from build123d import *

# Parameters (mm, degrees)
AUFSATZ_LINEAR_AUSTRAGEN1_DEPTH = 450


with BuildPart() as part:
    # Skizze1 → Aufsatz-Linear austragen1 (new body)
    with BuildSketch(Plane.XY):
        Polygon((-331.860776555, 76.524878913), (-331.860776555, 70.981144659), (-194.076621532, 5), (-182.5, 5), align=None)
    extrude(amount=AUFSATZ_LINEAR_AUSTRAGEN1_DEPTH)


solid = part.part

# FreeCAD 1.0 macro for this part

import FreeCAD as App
import Part
import Sketcher


def add_polygon(sketch, points):
    """Adds a closed chain of lines whose ends are joined by coincident constraints."""
    first, n = sketch.GeometryCount, len(points)
    for a, b in zip(points, points[1:] + points[:1]):
        sketch.addGeometry(Part.LineSegment(App.Vector(*a, 0), App.Vector(*b, 0)), False)
    for i in range(n):
        sketch.addConstraint(Sketcher.Constraint("Coincident", first + i, 2, first + (i + 1) % n, 1))

doc = App.newDocument("Part")
body = doc.addObject("PartDesign::Body", "Body")

# Sketch on XY plane
sketch1 = body.newObject("Sketcher::SketchObject", "Sketch")
sketch1.AttachmentSupport = (doc.getObject("XY_Plane"), [""])
sketch1.MapMode = "FlatFace"
add_polygon(sketch1, [(-332, 77), (-332, 71), (-194, 5), (-182, 5)])  # lines 0-3
sketch1.addConstraint([
    Sketcher.Constraint("Vertical", 0),
    Sketcher.Constraint("Horizontal", 2),
    Sketcher.Constraint("Parallel", 1, 3),
    Sketcher.Constraint("DistanceY", -1, 1, 1, 2, 5.0),
    Sketcher.Constraint("DistanceX", 2, 2, -1, 1, 182.5),
    Sketcher.Constraint("DistanceX", 2, 1, 2, 2, 11.576622),
    Sketcher.Constraint("Distance", 3, 165.603291),
    Sketcher.Constraint("DistanceY", 0, 2, 0, 1, 5.543734),
])
pad1 = body.newObject("PartDesign::Pad", "Pad")
pad1.Profile = sketch1
pad1.Length = 450

doc.recompute()
